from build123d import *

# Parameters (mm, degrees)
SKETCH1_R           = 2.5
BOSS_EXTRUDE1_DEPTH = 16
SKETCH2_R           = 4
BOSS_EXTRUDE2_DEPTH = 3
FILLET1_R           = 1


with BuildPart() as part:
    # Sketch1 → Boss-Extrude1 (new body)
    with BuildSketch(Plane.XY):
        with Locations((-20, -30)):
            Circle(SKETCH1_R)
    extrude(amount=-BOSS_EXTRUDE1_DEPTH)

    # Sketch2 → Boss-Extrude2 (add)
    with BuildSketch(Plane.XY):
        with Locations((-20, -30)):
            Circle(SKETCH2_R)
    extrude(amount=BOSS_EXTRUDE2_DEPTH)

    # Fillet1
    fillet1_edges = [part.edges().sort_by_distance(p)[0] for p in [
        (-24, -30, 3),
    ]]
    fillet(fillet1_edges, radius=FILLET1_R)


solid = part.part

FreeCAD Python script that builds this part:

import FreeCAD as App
import Part
import Sketcher
Q = App.Units.Quantity


def edges_at(feature, points):
    """Names of the edges that pass closest to the given points."""
    edges = feature.Shape.Edges
    near = lambda p: min(range(len(edges)), key=lambda i: edges[i].distToShape(Part.Vertex(*p))[0])
    return sorted({f"Edge{near(p) + 1}" for p in points})

doc = App.newDocument("Part")
body = doc.addObject("PartDesign::Body", "Body")

sketch1 = body.newObject("Sketcher::SketchObject", "Sketch")
sketch1.AttachmentSupport = (doc.getObject("XY_Plane"), [""])
sketch1.MapMode = "FlatFace"
sketch1.addGeometry(Part.Circle(App.Vector(-20, -30, 0), App.Vector(0, 0, 1), 2.5), False)
sketch1.addConstraint(Sketcher.Constraint("Diameter", 0, Q("5 mm")))
sketch1.addConstraint(Sketcher.Constraint("DistanceX", 0, 3, -1, 1, Q("20 mm")))
sketch1.addConstraint(Sketcher.Constraint("DistanceY", 0, 3, -1, 1, Q("30 mm")))
pad1 = body.newObject("PartDesign::Pad", "Pad")
pad1.Profile = sketch1
pad1.Length = 16
pad1.Reversed = True

sketch2 = body.newObject("Sketcher::SketchObject", "Sketch001")
sketch2.AttachmentSupport = (doc.getObject("XY_Plane"), [""])
sketch2.MapMode = "FlatFace"
sketch2.addGeometry(Part.Circle(App.Vector(-20, -30, 0), App.Vector(0, 0, 1), 4), False)
sketch2.addConstraint(Sketcher.Constraint("Diameter", 0, Q("8 mm")))
sketch2.addConstraint(Sketcher.Constraint("DistanceX", 0, 3, -1, 1, Q("20 mm")))
sketch2.addConstraint(Sketcher.Constraint("DistanceY", 0, 3, -1, 1, Q("30 mm")))
pad2 = body.newObject("PartDesign::Pad", "Pad001")
pad2.Profile = sketch2
pad2.Length = 3
doc.recompute()

fillet = body.newObject("PartDesign::Fillet", "Fillet")
fillet.Base = (pad2, edges_at(pad2, [(-24, -30, 3)]))
fillet.Radius = 1

doc.recompute()
